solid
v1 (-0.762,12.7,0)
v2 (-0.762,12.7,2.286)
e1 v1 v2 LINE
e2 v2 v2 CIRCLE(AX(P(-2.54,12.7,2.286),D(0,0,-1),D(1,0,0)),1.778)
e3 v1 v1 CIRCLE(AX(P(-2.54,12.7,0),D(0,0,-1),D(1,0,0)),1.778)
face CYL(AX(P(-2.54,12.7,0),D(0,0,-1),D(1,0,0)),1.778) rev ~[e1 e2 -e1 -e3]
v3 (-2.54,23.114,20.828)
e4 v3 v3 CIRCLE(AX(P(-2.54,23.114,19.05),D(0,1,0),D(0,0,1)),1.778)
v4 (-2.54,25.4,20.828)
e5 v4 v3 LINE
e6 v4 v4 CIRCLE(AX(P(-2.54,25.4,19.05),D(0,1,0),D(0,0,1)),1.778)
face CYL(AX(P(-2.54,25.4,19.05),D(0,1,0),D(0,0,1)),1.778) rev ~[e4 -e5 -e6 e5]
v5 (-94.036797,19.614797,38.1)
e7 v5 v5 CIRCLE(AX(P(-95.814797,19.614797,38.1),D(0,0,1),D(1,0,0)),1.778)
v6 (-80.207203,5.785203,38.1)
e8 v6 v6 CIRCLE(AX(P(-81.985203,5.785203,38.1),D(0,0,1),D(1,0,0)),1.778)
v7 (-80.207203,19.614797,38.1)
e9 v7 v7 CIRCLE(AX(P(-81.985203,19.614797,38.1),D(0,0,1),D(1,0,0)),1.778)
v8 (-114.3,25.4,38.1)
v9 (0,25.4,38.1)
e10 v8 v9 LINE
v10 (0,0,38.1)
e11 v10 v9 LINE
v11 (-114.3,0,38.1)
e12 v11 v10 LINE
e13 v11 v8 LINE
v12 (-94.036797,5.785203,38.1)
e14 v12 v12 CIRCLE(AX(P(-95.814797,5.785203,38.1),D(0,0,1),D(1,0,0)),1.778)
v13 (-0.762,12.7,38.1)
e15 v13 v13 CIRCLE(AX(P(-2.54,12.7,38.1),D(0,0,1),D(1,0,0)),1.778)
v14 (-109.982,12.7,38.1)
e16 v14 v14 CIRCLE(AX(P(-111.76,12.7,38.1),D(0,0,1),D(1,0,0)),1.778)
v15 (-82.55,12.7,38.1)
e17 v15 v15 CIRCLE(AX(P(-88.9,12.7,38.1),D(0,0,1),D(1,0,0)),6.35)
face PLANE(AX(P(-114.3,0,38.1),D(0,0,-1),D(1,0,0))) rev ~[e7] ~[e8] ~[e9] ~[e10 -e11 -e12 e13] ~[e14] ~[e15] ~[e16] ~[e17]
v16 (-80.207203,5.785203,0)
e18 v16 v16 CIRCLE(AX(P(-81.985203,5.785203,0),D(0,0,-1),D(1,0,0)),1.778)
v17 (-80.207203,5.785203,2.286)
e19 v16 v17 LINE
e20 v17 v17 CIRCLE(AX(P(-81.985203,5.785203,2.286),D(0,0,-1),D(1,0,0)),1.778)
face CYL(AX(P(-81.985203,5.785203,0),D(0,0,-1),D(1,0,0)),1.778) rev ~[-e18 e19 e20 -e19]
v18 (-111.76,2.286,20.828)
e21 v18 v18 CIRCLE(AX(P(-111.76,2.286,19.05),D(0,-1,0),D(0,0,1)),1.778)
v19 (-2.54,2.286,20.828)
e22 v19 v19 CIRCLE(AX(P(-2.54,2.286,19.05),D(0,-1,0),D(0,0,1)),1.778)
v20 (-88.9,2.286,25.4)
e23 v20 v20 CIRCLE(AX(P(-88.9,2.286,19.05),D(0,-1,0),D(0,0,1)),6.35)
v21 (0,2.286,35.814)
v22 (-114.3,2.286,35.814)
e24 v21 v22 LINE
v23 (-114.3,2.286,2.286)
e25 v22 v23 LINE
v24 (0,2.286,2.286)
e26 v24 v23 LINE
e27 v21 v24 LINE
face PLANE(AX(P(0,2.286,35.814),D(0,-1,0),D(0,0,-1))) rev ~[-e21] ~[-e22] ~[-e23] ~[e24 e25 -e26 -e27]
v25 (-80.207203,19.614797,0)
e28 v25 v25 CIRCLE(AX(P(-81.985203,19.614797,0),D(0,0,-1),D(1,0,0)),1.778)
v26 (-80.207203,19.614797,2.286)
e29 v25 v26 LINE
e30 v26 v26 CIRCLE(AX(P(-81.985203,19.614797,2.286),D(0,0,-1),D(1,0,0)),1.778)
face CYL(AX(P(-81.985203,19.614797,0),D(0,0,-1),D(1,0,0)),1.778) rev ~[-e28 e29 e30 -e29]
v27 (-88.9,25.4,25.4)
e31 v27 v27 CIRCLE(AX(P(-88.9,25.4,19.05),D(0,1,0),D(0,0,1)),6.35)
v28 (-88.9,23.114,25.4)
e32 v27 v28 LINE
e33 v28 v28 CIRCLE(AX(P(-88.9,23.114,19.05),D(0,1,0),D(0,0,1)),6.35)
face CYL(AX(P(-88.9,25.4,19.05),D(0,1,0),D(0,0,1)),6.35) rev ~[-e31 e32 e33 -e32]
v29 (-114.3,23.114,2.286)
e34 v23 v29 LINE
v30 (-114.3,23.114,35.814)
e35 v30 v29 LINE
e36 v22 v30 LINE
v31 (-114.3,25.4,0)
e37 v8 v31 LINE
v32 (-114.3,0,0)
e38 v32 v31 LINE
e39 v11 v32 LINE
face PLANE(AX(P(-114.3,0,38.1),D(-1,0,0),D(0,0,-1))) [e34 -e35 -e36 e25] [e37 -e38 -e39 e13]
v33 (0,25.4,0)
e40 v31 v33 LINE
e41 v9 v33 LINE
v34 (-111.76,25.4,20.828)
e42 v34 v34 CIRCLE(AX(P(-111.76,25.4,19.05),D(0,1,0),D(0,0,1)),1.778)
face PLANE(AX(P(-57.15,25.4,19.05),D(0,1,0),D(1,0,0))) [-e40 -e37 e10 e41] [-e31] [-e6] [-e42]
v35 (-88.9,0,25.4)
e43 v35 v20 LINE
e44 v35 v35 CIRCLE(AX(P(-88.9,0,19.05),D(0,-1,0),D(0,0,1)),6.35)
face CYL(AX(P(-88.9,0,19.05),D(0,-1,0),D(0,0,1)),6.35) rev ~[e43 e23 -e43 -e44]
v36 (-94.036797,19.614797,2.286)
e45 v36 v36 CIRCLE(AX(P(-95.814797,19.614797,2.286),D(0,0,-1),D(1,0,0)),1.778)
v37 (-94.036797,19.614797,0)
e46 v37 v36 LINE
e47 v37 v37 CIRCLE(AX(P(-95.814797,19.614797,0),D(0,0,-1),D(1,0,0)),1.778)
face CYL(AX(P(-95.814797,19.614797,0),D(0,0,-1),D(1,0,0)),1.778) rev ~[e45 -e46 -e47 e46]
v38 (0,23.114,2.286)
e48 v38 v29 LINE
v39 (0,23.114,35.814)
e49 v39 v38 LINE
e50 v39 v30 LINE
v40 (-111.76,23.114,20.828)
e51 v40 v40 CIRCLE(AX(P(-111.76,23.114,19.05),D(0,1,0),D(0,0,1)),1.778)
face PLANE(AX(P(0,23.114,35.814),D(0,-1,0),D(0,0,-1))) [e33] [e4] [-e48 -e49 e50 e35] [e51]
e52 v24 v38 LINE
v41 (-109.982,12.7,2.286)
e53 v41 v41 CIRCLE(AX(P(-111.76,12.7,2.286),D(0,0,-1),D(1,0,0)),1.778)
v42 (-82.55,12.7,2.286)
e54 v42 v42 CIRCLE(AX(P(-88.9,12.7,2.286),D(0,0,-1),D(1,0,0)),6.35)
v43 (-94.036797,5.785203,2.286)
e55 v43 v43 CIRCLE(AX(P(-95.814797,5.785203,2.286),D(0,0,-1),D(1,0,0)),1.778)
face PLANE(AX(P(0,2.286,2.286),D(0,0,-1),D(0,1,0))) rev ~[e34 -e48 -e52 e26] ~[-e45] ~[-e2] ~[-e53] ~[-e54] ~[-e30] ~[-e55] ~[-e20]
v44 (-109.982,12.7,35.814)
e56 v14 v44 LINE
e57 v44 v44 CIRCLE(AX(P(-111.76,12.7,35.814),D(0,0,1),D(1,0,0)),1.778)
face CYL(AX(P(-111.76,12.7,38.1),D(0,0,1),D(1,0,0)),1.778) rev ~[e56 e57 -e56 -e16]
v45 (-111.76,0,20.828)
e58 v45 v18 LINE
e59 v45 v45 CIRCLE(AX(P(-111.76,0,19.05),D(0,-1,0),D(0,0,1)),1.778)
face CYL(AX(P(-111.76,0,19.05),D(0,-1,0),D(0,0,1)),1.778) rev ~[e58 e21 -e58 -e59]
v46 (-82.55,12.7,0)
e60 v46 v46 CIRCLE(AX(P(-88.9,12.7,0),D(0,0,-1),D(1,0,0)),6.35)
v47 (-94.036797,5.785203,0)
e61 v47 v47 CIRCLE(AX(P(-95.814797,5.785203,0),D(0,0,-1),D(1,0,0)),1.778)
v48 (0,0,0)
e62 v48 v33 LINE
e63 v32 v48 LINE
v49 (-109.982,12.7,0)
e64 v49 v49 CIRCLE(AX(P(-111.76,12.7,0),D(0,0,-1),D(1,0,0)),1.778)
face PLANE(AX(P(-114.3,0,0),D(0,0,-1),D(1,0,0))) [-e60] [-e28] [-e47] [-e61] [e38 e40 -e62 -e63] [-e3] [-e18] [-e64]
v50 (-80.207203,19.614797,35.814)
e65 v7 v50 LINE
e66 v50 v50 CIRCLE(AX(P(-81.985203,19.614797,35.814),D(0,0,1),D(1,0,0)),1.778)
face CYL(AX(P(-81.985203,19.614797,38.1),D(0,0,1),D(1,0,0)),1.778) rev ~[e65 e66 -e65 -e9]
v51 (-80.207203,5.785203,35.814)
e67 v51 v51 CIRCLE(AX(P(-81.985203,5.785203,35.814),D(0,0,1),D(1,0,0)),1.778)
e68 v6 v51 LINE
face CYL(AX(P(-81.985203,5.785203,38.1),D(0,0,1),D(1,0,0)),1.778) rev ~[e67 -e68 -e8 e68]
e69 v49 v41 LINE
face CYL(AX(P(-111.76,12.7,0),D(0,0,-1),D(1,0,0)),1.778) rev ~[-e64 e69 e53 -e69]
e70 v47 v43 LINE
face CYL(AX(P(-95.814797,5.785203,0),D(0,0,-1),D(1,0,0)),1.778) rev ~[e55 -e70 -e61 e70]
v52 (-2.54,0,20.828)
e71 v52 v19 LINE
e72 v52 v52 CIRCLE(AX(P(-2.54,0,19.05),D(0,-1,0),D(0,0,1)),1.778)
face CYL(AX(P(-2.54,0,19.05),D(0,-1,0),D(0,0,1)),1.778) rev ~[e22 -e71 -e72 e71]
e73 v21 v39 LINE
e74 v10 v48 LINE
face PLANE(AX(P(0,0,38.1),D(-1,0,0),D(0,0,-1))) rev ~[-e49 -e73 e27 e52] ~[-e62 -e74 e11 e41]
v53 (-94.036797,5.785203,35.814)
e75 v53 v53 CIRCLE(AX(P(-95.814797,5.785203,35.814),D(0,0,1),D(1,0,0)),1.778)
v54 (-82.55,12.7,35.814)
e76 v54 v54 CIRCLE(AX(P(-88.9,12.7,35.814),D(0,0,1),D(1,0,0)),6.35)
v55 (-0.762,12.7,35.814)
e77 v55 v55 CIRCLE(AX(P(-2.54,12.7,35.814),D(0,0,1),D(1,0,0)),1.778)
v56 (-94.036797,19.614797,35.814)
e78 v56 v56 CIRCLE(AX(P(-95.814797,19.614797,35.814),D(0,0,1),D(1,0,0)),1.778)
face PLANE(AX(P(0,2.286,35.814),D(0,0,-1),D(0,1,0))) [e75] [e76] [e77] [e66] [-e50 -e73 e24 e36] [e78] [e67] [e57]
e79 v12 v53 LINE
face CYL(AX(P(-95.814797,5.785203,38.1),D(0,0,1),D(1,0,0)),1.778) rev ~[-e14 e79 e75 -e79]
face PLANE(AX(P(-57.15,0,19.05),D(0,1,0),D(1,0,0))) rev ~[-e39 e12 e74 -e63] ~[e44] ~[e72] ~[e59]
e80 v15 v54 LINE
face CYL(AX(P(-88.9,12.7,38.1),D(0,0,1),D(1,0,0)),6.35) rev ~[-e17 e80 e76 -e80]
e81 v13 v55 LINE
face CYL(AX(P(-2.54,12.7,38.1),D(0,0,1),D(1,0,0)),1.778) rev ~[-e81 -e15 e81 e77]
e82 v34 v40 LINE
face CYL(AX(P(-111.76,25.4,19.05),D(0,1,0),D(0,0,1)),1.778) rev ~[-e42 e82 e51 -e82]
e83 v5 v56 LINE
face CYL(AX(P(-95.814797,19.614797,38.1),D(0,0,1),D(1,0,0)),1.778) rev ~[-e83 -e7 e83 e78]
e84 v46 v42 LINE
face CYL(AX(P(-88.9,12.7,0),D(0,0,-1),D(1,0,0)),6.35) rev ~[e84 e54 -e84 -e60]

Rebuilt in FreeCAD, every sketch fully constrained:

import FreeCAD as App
import Part
import Sketcher
from FreeCAD import Vector
Q = App.Units.Quantity

doc = App.newDocument("Part")
body = doc.addObject("PartDesign::Body", "Body")

sketch1 = body.newObject("Sketcher::SketchObject", "Sketch")
sketch1.AttachmentSupport = (doc.getObject("XZ_Plane"), [""])
sketch1.MapMode = "FlatFace"
sketch1.addGeometry([
    Part.LineSegment(Vector(-114, 0, 0), Vector(-114, 38, 0)),
    Part.LineSegment(Vector(-114, 38, 0), Vector(0, 38, 0)),
    Part.LineSegment(Vector(0, 38, 0), Vector(0, 0, 0)),
    Part.LineSegment(Vector(0, 0, 0), Vector(-114, 0, 0)),
], False)
sketch1.addConstraint([
    Sketcher.Constraint("Coincident", 0, 2, 1, 1),
    Sketcher.Constraint("Coincident", 1, 2, 2, 1),
    Sketcher.Constraint("Coincident", 2, 2, 3, 1),
    Sketcher.Constraint("Coincident", 3, 2, 0, 1),
    Sketcher.Constraint("Vertical", 0),
    Sketcher.Constraint("Horizontal", 1),
    Sketcher.Constraint("Vertical", 2),
    Sketcher.Constraint("Horizontal", 3),
    Sketcher.Constraint("Coincident", 2, 2, -1, 1),
    Sketcher.Constraint("DistanceX", 1, 1, 1, 2, Q("4.5 in")),
    Sketcher.Constraint("DistanceY", 0, 1, 0, 2, Q("1.5 in")),
])
pad1 = body.newObject("PartDesign::Pad", "Pad")
pad1.Profile = sketch1
pad1.Length = Q("1 in")
pad1.Reversed = True

sketch2 = body.newObject("Sketcher::SketchObject", "Sketch001")
sketch2.AttachmentSupport = (doc.getObject("YZ_Plane"), [""])
sketch2.MapMode = "FlatFace"
sketch2.addGeometry([
    Part.LineSegment(Vector(23, 36, 0), Vector(2, 36, 0)),
    Part.LineSegment(Vector(2, 36, 0), Vector(2, 2, 0)),
    Part.LineSegment(Vector(2, 2, 0), Vector(23, 2, 0)),
    Part.LineSegment(Vector(23, 2, 0), Vector(23, 36, 0)),
], False)
sketch2.addConstraint([
    Sketcher.Constraint("Coincident", 0, 2, 1, 1),
    Sketcher.Constraint("Coincident", 1, 2, 2, 1),
    Sketcher.Constraint("Coincident", 2, 2, 3, 1),
    Sketcher.Constraint("Coincident", 3, 2, 0, 1),
    Sketcher.Constraint("Horizontal", 0),
    Sketcher.Constraint("Vertical", 1),
    Sketcher.Constraint("Horizontal", 2),
    Sketcher.Constraint("Vertical", 3),
    Sketcher.Constraint("DistanceX", 0, 2, 0, 1, Q("0.82 in")),
    Sketcher.Constraint("DistanceY", 1, 2, 1, 1, Q("1.32 in")),
    Sketcher.Constraint("DistanceX", -1, 1, 0, 2, Q("0.09 in")),
    Sketcher.Constraint("DistanceY", -1, 1, 0, 2, Q("1.41 in")),
])
pocket1 = body.newObject("PartDesign::Pocket", "Pocket")
pocket1.Profile = sketch2
pocket1.Type = "UpToFirst"

sketch3 = body.newObject("Sketcher::SketchObject", "Sketch002")
sketch3.AttachmentSupport = (doc.getObject("XY_Plane"), [""])
sketch3.MapMode = "FlatFace"
sketch3.AttachmentOffset = App.Placement(Vector(0, 0, 1.5 * 25.4), App.Rotation())
sketch3.addGeometry(Part.Circle(Vector(-2.5, 12.7, 0), Vector(0, 0, 1), 1.8), False)
sketch3.addConstraint([
    Sketcher.Constraint("Diameter", 0, Q("0.14 in")),
    Sketcher.Constraint("DistanceX", 0, 3, -1, 1, Q("0.1 in")),
    Sketcher.Constraint("DistanceY", -1, 1, 0, 3, Q("0.5 in")),
])
pocket2 = body.newObject("PartDesign::Pocket", "Pocket001")
pocket2.Profile = sketch3
pocket2.Type = "UpToFirst"

sketch4 = body.newObject("Sketcher::SketchObject", "Sketch003")
sketch4.AttachmentSupport = (doc.getObject("XY_Plane"), [""])
sketch4.MapMode = "FlatFace"
sketch4.addGeometry(Part.Circle(Vector(-2.5, 12.7, 0), Vector(0, 0, 1), 1.8), False)
sketch4.addConstraint([
    Sketcher.Constraint("Diameter", 0, Q("0.14 in")),
    Sketcher.Constraint("DistanceX", 0, 3, -1, 1, Q("0.1 in")),
    Sketcher.Constraint("DistanceY", -1, 1, 0, 3, Q("0.5 in")),
])
pocket3 = body.newObject("PartDesign::Pocket", "Pocket002")
pocket3.Profile = sketch4
pocket3.Type = "UpToFirst"
pocket3.Reversed = True

sketch5 = body.newObject("Sketcher::SketchObject", "Sketch004")
sketch5.AttachmentSupport = (doc.getObject("XY_Plane"), [""])
sketch5.MapMode = "FlatFace"
sketch5.AttachmentOffset = App.Placement(Vector(0, 0, 1.5 * 25.4), App.Rotation())
sketch5.addGeometry(Part.Circle(Vector(-111.8, 12.7, 0), Vector(0, 0, 1), 1.8), False)
sketch5.addConstraint([
    Sketcher.Constraint("Diameter", 0, Q("0.14 in")),
    Sketcher.Constraint("DistanceX", 0, 3, -1, 1, Q("4.4 in")),
    Sketcher.Constraint("DistanceY", -1, 1, 0, 3, Q("0.5 in")),
])
pocket4 = body.newObject("PartDesign::Pocket", "Pocket003")
pocket4.Profile = sketch5
pocket4.Type = "UpToFirst"

sketch6 = body.newObject("Sketcher::SketchObject", "Sketch005")
sketch6.AttachmentSupport = (doc.getObject("XY_Plane"), [""])
sketch6.MapMode = "FlatFace"
sketch6.AttachmentOffset = App.Placement(Vector(0, 0, 1.5 * 25.4), App.Rotation())
sketch6.addGeometry(Part.Circle(Vector(-89, 13, 0), Vector(0, 0, 1), 6), False)
sketch6.addConstraint([
    Sketcher.Constraint("Diameter", 0, Q("0.5 in")),
    Sketcher.Constraint("DistanceX", 0, 3, -1, 1, Q("3.5 in")),
    Sketcher.Constraint("DistanceY", -1, 1, 0, 3, Q("0.5 in")),
])
pocket5 = body.newObject("PartDesign::Pocket", "Pocket004")
pocket5.Profile = sketch6
pocket5.Type = "UpToFirst"

sketch7 = body.newObject("Sketcher::SketchObject", "Sketch006")
sketch7.AttachmentSupport = (doc.getObject("XY_Plane"), [""])
sketch7.MapMode = "FlatFace"
sketch7.AttachmentOffset = App.Placement(Vector(0, 0, 1.5 * 25.4), App.Rotation())
sketch7.addGeometry(Part.Circle(Vector(-95.8, 19.6, 0), Vector(0, 0, 1), 1.8), False)
sketch7.addConstraint([
    Sketcher.Constraint("Diameter", 0, Q("0.14 in")),
    Sketcher.Constraint("DistanceX", 0, 3, -1, 1, Q("95.814797 mm")),
    Sketcher.Constraint("DistanceY", -1, 1, 0, 3, Q("19.614797 mm")),
])
pocket6 = body.newObject("PartDesign::Pocket", "Pocket005")
pocket6.Profile = sketch7
pocket6.Type = "UpToFirst"

sketch8 = body.newObject("Sketcher::SketchObject", "Sketch007")
sketch8.AttachmentSupport = (doc.getObject("XY_Plane"), [""])
sketch8.MapMode = "FlatFace"
sketch8.AttachmentOffset = App.Placement(Vector(0, 0, 1.5 * 25.4), App.Rotation())
sketch8.addGeometry(Part.Circle(Vector(-82, 19.6, 0), Vector(0, 0, 1), 1.8), False)
sketch8.addConstraint([
    Sketcher.Constraint("Diameter", 0, Q("0.14 in")),
    Sketcher.Constraint("DistanceX", 0, 3, -1, 1, Q("81.985203 mm")),
    Sketcher.Constraint("DistanceY", -1, 1, 0, 3, Q("19.614797 mm")),
])
pocket7 = body.newObject("PartDesign::Pocket", "Pocket006")
pocket7.Profile = sketch8
pocket7.Type = "UpToFirst"

sketch9 = body.newObject("Sketcher::SketchObject", "Sketch008")
sketch9.AttachmentSupport = (doc.getObject("XY_Plane"), [""])
sketch9.MapMode = "FlatFace"
sketch9.AttachmentOffset = App.Placement(Vector(0, 0, 1.5 * 25.4), App.Rotation())
sketch9.addGeometry(Part.Circle(Vector(-95.8, 5.8, 0), Vector(0, 0, 1), 1.8), False)
sketch9.addConstraint([
    Sketcher.Constraint("Diameter", 0, Q("0.14 in")),
    Sketcher.Constraint("DistanceX", 0, 3, -1, 1, Q("95.814797 mm")),
    Sketcher.Constraint("DistanceY", -1, 1, 0, 3, Q("5.785203 mm")),
])
pocket8 = body.newObject("PartDesign::Pocket", "Pocket007")
pocket8.Profile = sketch9
pocket8.Type = "UpToFirst"

sketch10 = body.newObject("Sketcher::SketchObject", "Sketch009")
sketch10.AttachmentSupport = (doc.getObject("XY_Plane"), [""])
sketch10.MapMode = "FlatFace"
sketch10.AttachmentOffset = App.Placement(Vector(0, 0, 1.5 * 25.4), App.Rotation())
sketch10.addGeometry(Part.Circle(Vector(-82, 5.8, 0), Vector(0, 0, 1), 1.8), False)
sketch10.addConstraint([
    Sketcher.Constraint("Diameter", 0, Q("0.14 in")),
    Sketcher.Constraint("DistanceX", 0, 3, -1, 1, Q("81.985203 mm")),
    Sketcher.Constraint("DistanceY", -1, 1, 0, 3, Q("5.785203 mm")),
])
pocket9 = body.newObject("PartDesign::Pocket", "Pocket008")
pocket9.Profile = sketch10
pocket9.Type = "UpToFirst"

sketch11 = body.newObject("Sketcher::SketchObject", "Sketch010")
sketch11.AttachmentSupport = (doc.getObject("XY_Plane"), [""])
sketch11.MapMode = "FlatFace"
sketch11.addGeometry(Part.Circle(Vector(-111.8, 12.7, 0), Vector(0, 0, 1), 1.8), False)
sketch11.addConstraint([
    Sketcher.Constraint("Diameter", 0, Q("0.14 in")),
    Sketcher.Constraint("DistanceX", 0, 3, -1, 1, Q("4.4 in")),
    Sketcher.Constraint("DistanceY", -1, 1, 0, 3, Q("0.5 in")),
])
pocket10 = body.newObject("PartDesign::Pocket", "Pocket009")
pocket10.Profile = sketch11
pocket10.Type = "UpToFirst"
pocket10.Reversed = True

sketch12 = body.newObject("Sketcher::SketchObject", "Sketch011")
sketch12.AttachmentSupport = (doc.getObject("XY_Plane"), [""])
sketch12.MapMode = "FlatFace"
sketch12.addGeometry(Part.Circle(Vector(-89, 13, 0), Vector(0, 0, 1), 6), False)
sketch12.addConstraint([
    Sketcher.Constraint("Diameter", 0, Q("0.5 in")),
    Sketcher.Constraint("DistanceX", 0, 3, -1, 1, Q("3.5 in")),
    Sketcher.Constraint("DistanceY", -1, 1, 0, 3, Q("0.5 in")),
])
pocket11 = body.newObject("PartDesign::Pocket", "Pocket010")
pocket11.Profile = sketch12
pocket11.Type = "UpToFirst"
pocket11.Reversed = True

sketch13 = body.newObject("Sketcher::SketchObject", "Sketch012")
sketch13.AttachmentSupport = (doc.getObject("XY_Plane"), [""])
sketch13.MapMode = "FlatFace"
sketch13.addGeometry(Part.Circle(Vector(-82, 19.6, 0), Vector(0, 0, 1), 1.8), False)
sketch13.addConstraint([
    Sketcher.Constraint("Diameter", 0, Q("0.14 in")),
    Sketcher.Constraint("DistanceX", 0, 3, -1, 1, Q("81.985203 mm")),
    Sketcher.Constraint("DistanceY", -1, 1, 0, 3, Q("19.614797 mm")),
])
pocket12 = body.newObject("PartDesign::Pocket", "Pocket011")
pocket12.Profile = sketch13
pocket12.Type = "UpToFirst"
pocket12.Reversed = True

sketch14 = body.newObject("Sketcher::SketchObject", "Sketch013")
sketch14.AttachmentSupport = (doc.getObject("XY_Plane"), [""])
sketch14.MapMode = "FlatFace"
sketch14.addGeometry(Part.Circle(Vector(-95.8, 19.6, 0), Vector(0, 0, 1), 1.8), False)
sketch14.addConstraint([
    Sketcher.Constraint("Diameter", 0, Q("0.14 in")),
    Sketcher.Constraint("DistanceX", 0, 3, -1, 1, Q("95.814797 mm")),
    Sketcher.Constraint("DistanceY", -1, 1, 0, 3, Q("19.614797 mm")),
])
pocket13 = body.newObject("PartDesign::Pocket", "Pocket012")
pocket13.Profile = sketch14
pocket13.Type = "UpToFirst"
pocket13.Reversed = True

sketch15 = body.newObject("Sketcher::SketchObject", "Sketch014")
sketch15.AttachmentSupport = (doc.getObject("XY_Plane"), [""])
sketch15.MapMode = "FlatFace"
sketch15.addGeometry(Part.Circle(Vector(-95.8, 5.8, 0), Vector(0, 0, 1), 1.8), False)
sketch15.addConstraint([
    Sketcher.Constraint("Diameter", 0, Q("0.14 in")),
    Sketcher.Constraint("DistanceX", 0, 3, -1, 1, Q("95.814797 mm")),
    Sketcher.Constraint("DistanceY", -1, 1, 0, 3, Q("5.785203 mm")),
])
pocket14 = body.newObject("PartDesign::Pocket", "Pocket013")
pocket14.Profile = sketch15
pocket14.Type = "UpToFirst"
pocket14.Reversed = True

sketch16 = body.newObject("Sketcher::SketchObject", "Sketch015")
sketch16.AttachmentSupport = (doc.getObject("XY_Plane"), [""])
sketch16.MapMode = "FlatFace"
sketch16.addGeometry(Part.Circle(Vector(-82, 5.8, 0), Vector(0, 0, 1), 1.8), False)
sketch16.addConstraint([
    Sketcher.Constraint("Diameter", 0, Q("0.14 in")),
    Sketcher.Constraint("DistanceX", 0, 3, -1, 1, Q("81.985203 mm")),
    Sketcher.Constraint("DistanceY", -1, 1, 0, 3, Q("5.785203 mm")),
])
pocket15 = body.newObject("PartDesign::Pocket", "Pocket014")
pocket15.Profile = sketch16
pocket15.Type = "UpToFirst"
pocket15.Reversed = True

sketch17 = body.newObject("Sketcher::SketchObject", "Sketch016")
sketch17.AttachmentSupport = (doc.getObject("XZ_Plane"), [""])
sketch17.MapMode = "FlatFace"
sketch17.AttachmentOffset = App.Placement(Vector(0, 0, -1 * 25.4), App.Rotation())
sketch17.addGeometry(Part.Circle(Vector(-111.8, 19.1, 0), Vector(0, 0, 1), 1.8), False)
sketch17.addConstraint([
    Sketcher.Constraint("Diameter", 0, Q("0.14 in")),
    Sketcher.Constraint("DistanceX", 0, 3, -1, 1, Q("4.4 in")),
    Sketcher.Constraint("DistanceY", -1, 1, 0, 3, Q("0.75 in")),
])
pocket16 = body.newObject("PartDesign::Pocket", "Pocket015")
pocket16.Profile = sketch17
pocket16.Type = "UpToFirst"
pocket16.Reversed = True

sketch18 = body.newObject("Sketcher::SketchObject", "Sketch017")
sketch18.AttachmentSupport = (doc.getObject("XZ_Plane"), [""])
sketch18.MapMode = "FlatFace"
sketch18.AttachmentOffset = App.Placement(Vector(0, 0, -1 * 25.4), App.Rotation())
sketch18.addGeometry(Part.Circle(Vector(-89, 19, 0), Vector(0, 0, 1), 6), False)
sketch18.addConstraint([
    Sketcher.Constraint("Diameter", 0, Q("0.5 in")),
    Sketcher.Constraint("DistanceX", 0, 3, -1, 1, Q("3.5 in")),
    Sketcher.Constraint("DistanceY", -1, 1, 0, 3, Q("0.75 in")),
])
pocket17 = body.newObject("PartDesign::Pocket", "Pocket016")
pocket17.Profile = sketch18
pocket17.Type = "UpToFirst"
pocket17.Reversed = True

sketch19 = body.newObject("Sketcher::SketchObject", "Sketch018")
sketch19.AttachmentSupport = (doc.getObject("XZ_Plane"), [""])
sketch19.MapMode = "FlatFace"
sketch19.addGeometry(Part.Circle(Vector(-111.8, 19.1, 0), Vector(0, 0, 1), 1.8), False)
sketch19.addConstraint([
    Sketcher.Constraint("Diameter", 0, Q("0.14 in")),
    Sketcher.Constraint("DistanceX", 0, 3, -1, 1, Q("4.4 in")),
    Sketcher.Constraint("DistanceY", -1, 1, 0, 3, Q("0.75 in")),
])
pocket18 = body.newObject("PartDesign::Pocket", "Pocket017")
pocket18.Profile = sketch19
pocket18.Type = "UpToFirst"

sketch20 = body.newObject("Sketcher::SketchObject", "Sketch019")
sketch20.AttachmentSupport = (doc.getObject("XZ_Plane"), [""])
sketch20.MapMode = "FlatFace"
sketch20.addGeometry(Part.Circle(Vector(-89, 19, 0), Vector(0, 0, 1), 6), False)
sketch20.addConstraint([
    Sketcher.Constraint("Diameter", 0, Q("0.5 in")),
    Sketcher.Constraint("DistanceX", 0, 3, -1, 1, Q("3.5 in")),
    Sketcher.Constraint("DistanceY", -1, 1, 0, 3, Q("0.75 in")),
])
pocket19 = body.newObject("PartDesign::Pocket", "Pocket018")
pocket19.Profile = sketch20
pocket19.Type = "UpToFirst"

sketch21 = body.newObject("Sketcher::SketchObject", "Sketch020")
sketch21.AttachmentSupport = (doc.getObject("XZ_Plane"), [""])
sketch21.MapMode = "FlatFace"
sketch21.AttachmentOffset = App.Placement(Vector(0, 0, -1 * 25.4), App.Rotation())
sketch21.addGeometry(Part.Circle(Vector(-2.5, 19.1, 0), Vector(0, 0, 1), 1.8), False)
sketch21.addConstraint([
    Sketcher.Constraint("Diameter", 0, Q("0.14 in")),
    Sketcher.Constraint("DistanceX", 0, 3, -1, 1, Q("0.1 in")),
    Sketcher.Constraint("DistanceY", -1, 1, 0, 3, Q("0.75 in")),
])
pocket20 = body.newObject("PartDesign::Pocket", "Pocket019")
pocket20.Profile = sketch21
pocket20.Type = "UpToFirst"
pocket20.Reversed = True

sketch22 = body.newObject("Sketcher::SketchObject", "Sketch021")
sketch22.AttachmentSupport = (doc.getObject("XZ_Plane"), [""])
sketch22.MapMode = "FlatFace"
sketch22.addGeometry(Part.Circle(Vector(-2.5, 19.1, 0), Vector(0, 0, 1), 1.8), False)
sketch22.addConstraint([
    Sketcher.Constraint("Diameter", 0, Q("0.14 in")),
    Sketcher.Constraint("DistanceX", 0, 3, -1, 1, Q("0.1 in")),
    Sketcher.Constraint("DistanceY", -1, 1, 0, 3, Q("0.75 in")),
])
pocket21 = body.newObject("PartDesign::Pocket", "Pocket020")
pocket21.Profile = sketch22
pocket21.Type = "UpToFirst"

doc.recompute()
